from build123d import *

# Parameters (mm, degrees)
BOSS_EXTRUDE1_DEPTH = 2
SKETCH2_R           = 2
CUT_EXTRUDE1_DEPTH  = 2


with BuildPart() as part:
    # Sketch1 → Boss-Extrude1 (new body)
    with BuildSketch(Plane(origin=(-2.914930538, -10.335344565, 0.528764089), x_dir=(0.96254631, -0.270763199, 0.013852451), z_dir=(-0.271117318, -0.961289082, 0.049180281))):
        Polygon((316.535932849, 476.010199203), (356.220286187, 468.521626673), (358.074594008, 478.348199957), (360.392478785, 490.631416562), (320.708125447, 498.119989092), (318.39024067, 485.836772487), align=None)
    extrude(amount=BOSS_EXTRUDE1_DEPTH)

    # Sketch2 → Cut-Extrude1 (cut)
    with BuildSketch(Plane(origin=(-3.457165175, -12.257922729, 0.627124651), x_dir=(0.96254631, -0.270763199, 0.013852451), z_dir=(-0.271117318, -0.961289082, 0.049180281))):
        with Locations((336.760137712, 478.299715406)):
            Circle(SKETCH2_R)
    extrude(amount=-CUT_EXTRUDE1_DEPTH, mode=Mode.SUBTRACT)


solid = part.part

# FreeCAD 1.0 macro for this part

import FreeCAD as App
import Part
import Sketcher

V = App.Vector


def add_polygon(sketch, points):
    """Adds a closed chain of lines whose ends are joined by coincident constraints."""
    first, n = sketch.GeometryCount, len(points)
    for a, b in zip(points, points[1:] + points[:1]):
        sketch.addGeometry(Part.LineSegment(App.Vector(*a, 0), App.Vector(*b, 0)), False)
    for i in range(n):
        sketch.addConstraint(Sketcher.Constraint("Coincident", first + i, 2, first + (i + 1) % n, 1))

doc = App.newDocument("Part")
body = doc.addObject("PartDesign::Body", "Body")

# Sketch on an angled plane
sketch1 = body.newObject("Sketcher::SketchObject", "Sketch")
sketch1.Placement = App.Placement(V(-2.914931, -10.335345, 0.528764), App.Rotation(V(0.96254631, -0.270763199, 0.013852451), V(0, 0.051093937, 0.998693851), V(-0.271117318, -0.961289082, 0.049180281), "ZXY"))
add_polygon(sketch1, [(317, 476), (356, 469), (358, 478), (360, 491), (321, 498), (318, 486)])  # lines 0-5
sketch1.addConstraint([
    Sketcher.Constraint("Perpendicular", 0, 1),
    Sketcher.Constraint("Parallel", 1, 2),
    Sketcher.Constraint("Perpendicular", 2, 3),
    Sketcher.Constraint("Perpendicular", 3, 4),
    Sketcher.Constraint("Parallel", 4, 5),
    Sketcher.Constraint("Equal", 2, 4),
    Sketcher.Constraint("Distance", 1, 10.0),
    Sketcher.Constraint("Distance", 2, 12.5),
    Sketcher.Constraint("DistanceY", 5, 2, 1, 2, 2.338001),
    Sketcher.Constraint("DistanceY", -1, 1, 1, 2, 478.348199),
    Sketcher.Constraint("DistanceX", -1, 1, 2, 2, 360.392479),
    Sketcher.Constraint("DistanceY", -1, 1, 3, 2, 498.119988),
])
pad1 = body.newObject("PartDesign::Pad", "Pad")
pad1.Profile = sketch1
pad1.Length = 2

# Sketch on an angled plane
sketch2 = body.newObject("Sketcher::SketchObject", "Sketch001")
sketch2.Placement = App.Placement(V(-3.457165, -12.257923, 0.627125), App.Rotation(V(0.96254631, -0.270763199, 0.013852451), V(0, 0.051093937, 0.998693851), V(-0.271117318, -0.961289082, 0.049180281), "ZXY"))
sketch2.addGeometry(Part.Circle(V(336.8, 478.3, 0), V(0, 0, 1), 2), False)
sketch2.addConstraint([
    Sketcher.Constraint("Diameter", 0, 4.0),
    Sketcher.Constraint("DistanceX", -1, 1, 0, 3, 336.760137),
    Sketcher.Constraint("DistanceY", -1, 1, 0, 3, 478.299715),
])
pocket1 = body.newObject("PartDesign::Pocket", "Pocket")
pocket1.Profile = sketch2
pocket1.Length = 2

doc.recompute()
